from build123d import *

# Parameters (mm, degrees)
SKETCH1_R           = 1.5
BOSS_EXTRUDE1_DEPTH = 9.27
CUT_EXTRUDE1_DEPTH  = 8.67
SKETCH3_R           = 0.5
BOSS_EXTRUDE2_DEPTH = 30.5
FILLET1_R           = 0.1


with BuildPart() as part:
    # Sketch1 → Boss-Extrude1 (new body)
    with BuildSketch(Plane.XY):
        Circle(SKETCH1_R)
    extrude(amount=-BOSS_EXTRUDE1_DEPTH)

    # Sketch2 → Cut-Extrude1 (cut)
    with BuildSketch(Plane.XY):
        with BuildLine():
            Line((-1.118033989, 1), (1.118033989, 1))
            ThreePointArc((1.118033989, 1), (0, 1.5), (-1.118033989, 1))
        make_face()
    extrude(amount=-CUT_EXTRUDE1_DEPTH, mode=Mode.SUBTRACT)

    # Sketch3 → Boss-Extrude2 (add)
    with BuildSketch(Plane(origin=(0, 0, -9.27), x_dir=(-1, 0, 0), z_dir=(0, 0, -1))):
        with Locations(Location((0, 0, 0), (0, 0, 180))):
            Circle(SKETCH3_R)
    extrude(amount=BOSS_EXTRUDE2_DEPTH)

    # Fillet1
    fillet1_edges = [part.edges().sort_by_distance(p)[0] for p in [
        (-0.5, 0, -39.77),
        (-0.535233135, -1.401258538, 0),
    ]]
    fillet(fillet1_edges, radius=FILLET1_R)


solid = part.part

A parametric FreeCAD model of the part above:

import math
import FreeCAD as App
import Part
import Sketcher
from FreeCAD import Vector


def edges_at(feature, points):
    """Names of the edges that pass closest to the given points."""
    edges = feature.Shape.Edges
    near = lambda p: min(range(len(edges)), key=lambda i: edges[i].distToShape(Part.Vertex(*p))[0])
    return sorted({f"Edge{near(p) + 1}" for p in points})

doc = App.newDocument("Part")
body = doc.addObject("PartDesign::Body", "Body")

# Sketch on XY plane
sketch1 = doc.addObject("Sketcher::SketchObject", "Sketch")
body.addObject(sketch1)
sketch1.AttachmentSupport = (doc.XY_Plane, [""])
sketch1.MapMode = "FlatFace"
sketch1.addGeometry(Part.Circle(Vector(0, 0, 0), Vector(0, 0, 1), 1.5), False)
sketch1.addConstraint([
    Sketcher.Constraint("Coincident", 0, 3, -1, 1),
    Sketcher.Constraint("Diameter", 0, 3.0),
])
pad1 = doc.addObject("PartDesign::Pad", "Pad")
body.addObject(pad1)
pad1.Profile = sketch1
pad1.Length = 9.27
pad1.Reversed = True

# Sketch on XY plane
sketch2 = doc.addObject("Sketcher::SketchObject", "Sketch001")
body.addObject(sketch2)
sketch2.AttachmentSupport = (doc.XY_Plane, [""])
sketch2.MapMode = "FlatFace"
sketch2.addGeometry([
    Part.LineSegment(Vector(-1.118034, 1, 0), Vector(1.118034, 1, 0)),
    Part.ArcOfCircle(Part.Circle(Vector(0, 0, 0), Vector(0, 0, 1), 1.5), math.radians(41.810315), math.radians(138.189685)),
], False)
sketch2.addConstraint([
    Sketcher.Constraint("Coincident", 0, 1, 1, 2),
    Sketcher.Constraint("Coincident", 1, 1, 0, 2),
    Sketcher.Constraint("Horizontal", 0),
    Sketcher.Constraint("Coincident", 1, 3, -1, 1),
    Sketcher.Constraint("Radius", 1, 1.5),
    Sketcher.Constraint("DistanceY", -1, 1, 0, 1, 1.0),
])
pocket1 = doc.addObject("PartDesign::Pocket", "Pocket")
body.addObject(pocket1)
pocket1.Profile = sketch2
pocket1.Length = 8.67

# Sketch on XY plane
sketch3 = doc.addObject("Sketcher::SketchObject", "Sketch002")
body.addObject(sketch3)
sketch3.AttachmentSupport = (doc.XY_Plane, [""])
sketch3.MapMode = "FlatFace"
sketch3.AttachmentOffset = App.Placement(Vector(0, 0, -9.27), App.Rotation())
sketch3.addGeometry(Part.Circle(Vector(0, 0, 0), Vector(0, 0, 1), 0.5), False)
sketch3.addConstraint([
    Sketcher.Constraint("Coincident", 0, 3, -1, 1),
    Sketcher.Constraint("Diameter", 0, 1.0),
])
pad2 = doc.addObject("PartDesign::Pad", "Pad001")
body.addObject(pad2)
pad2.Profile = sketch3
pad2.Length = 30.5
pad2.Reversed = True
doc.recompute()

fillet = doc.addObject("PartDesign::Fillet", "Fillet")
body.addObject(fillet)
fillet.Base = (pad2, edges_at(pad2, [(-0.5, 0, -39.77), (-0.535, -1.401, 0)]))
fillet.Radius = 0.1

doc.recompute()
